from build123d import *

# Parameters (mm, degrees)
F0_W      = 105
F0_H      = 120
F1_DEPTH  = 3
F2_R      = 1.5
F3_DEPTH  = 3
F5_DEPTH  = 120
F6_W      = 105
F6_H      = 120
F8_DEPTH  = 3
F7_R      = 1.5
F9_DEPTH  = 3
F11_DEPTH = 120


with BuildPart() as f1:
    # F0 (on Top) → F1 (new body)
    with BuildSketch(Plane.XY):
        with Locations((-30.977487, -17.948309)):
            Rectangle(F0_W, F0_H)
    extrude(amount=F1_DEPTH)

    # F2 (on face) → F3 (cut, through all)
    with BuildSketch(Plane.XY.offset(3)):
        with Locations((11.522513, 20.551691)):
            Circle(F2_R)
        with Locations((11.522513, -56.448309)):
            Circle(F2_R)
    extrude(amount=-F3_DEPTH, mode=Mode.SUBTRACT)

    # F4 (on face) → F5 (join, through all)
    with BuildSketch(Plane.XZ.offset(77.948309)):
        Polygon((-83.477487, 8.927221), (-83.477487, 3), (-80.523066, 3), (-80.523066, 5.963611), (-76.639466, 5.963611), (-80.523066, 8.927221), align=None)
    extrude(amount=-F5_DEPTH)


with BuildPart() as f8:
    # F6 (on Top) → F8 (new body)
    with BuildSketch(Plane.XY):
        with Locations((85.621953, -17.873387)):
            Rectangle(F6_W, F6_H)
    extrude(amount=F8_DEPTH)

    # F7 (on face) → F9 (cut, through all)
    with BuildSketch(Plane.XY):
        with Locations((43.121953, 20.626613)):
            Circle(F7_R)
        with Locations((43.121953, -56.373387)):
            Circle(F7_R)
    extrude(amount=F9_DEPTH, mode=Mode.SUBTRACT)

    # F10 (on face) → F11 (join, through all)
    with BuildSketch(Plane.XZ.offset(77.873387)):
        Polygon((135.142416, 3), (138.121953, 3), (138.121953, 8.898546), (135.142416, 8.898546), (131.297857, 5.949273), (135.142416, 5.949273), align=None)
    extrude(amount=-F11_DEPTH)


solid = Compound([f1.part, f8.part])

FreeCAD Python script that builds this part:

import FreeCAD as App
import Part
import Sketcher
from FreeCAD import Vector


def add_polygon(sketch, points):
    """Adds a closed chain of lines whose ends are joined by coincident constraints."""
    first, n = sketch.GeometryCount, len(points)
    for a, b in zip(points, points[1:] + points[:1]):
        sketch.addGeometry(Part.LineSegment(App.Vector(*a, 0), App.Vector(*b, 0)), False)
    for i in range(n):
        sketch.addConstraint(Sketcher.Constraint("Coincident", first + i, 2, first + (i + 1) % n, 1))

doc = App.newDocument("Part")
body = doc.addObject("PartDesign::Body", "Body")

# Sketch on XY plane
sketch1 = doc.addObject("Sketcher::SketchObject", "Sketch")
body.addObject(sketch1)
sketch1.AttachmentSupport = (doc.XY_Plane, [""])
sketch1.MapMode = "FlatFace"
add_polygon(sketch1, [(-83.477487, 42.051691), (-83.477487, -77.948309), (21.522513, -77.948309), (21.522513, 42.051691)])  # lines 0-3
sketch1.addConstraint([
    Sketcher.Constraint("Vertical", 0),
    Sketcher.Constraint("Horizontal", 1),
    Sketcher.Constraint("Vertical", 2),
    Sketcher.Constraint("Horizontal", 3),
    Sketcher.Constraint("DistanceX", 1, 1, 1, 2, 105.0),
    Sketcher.Constraint("DistanceY", 0, 2, 0, 1, 120.0),
    Sketcher.Constraint("DistanceY", 0, 2, -1, 1, 77.948309),
    Sketcher.Constraint("DistanceX", 0, 2, -1, 1, 83.477487),
])
pad1 = doc.addObject("PartDesign::Pad", "Pad")
body.addObject(pad1)
pad1.Profile = sketch1
pad1.Length = 3

# Sketch on XY plane
sketch2 = doc.addObject("Sketcher::SketchObject", "Sketch001")
body.addObject(sketch2)
sketch2.AttachmentSupport = (doc.XY_Plane, [""])
sketch2.MapMode = "FlatFace"
sketch2.AttachmentOffset = App.Placement(Vector(0, 0, 3), App.Rotation())
sketch2.addGeometry([
    Part.Circle(Vector(11.522513, 20.551691, 0), Vector(0, 0, 1), 1.5),
    Part.Circle(Vector(11.522513, -56.448309, 0), Vector(0, 0, 1), 1.5),
], False)
sketch2.addConstraint([
    Sketcher.Constraint("Equal", 0, 1),
    Sketcher.Constraint("Vertical", 0, 3, 1, 3),
    Sketcher.Constraint("Diameter", 0, 3.0),
    Sketcher.Constraint("DistanceY", 1, 3, 0, 3, 77.0),
    Sketcher.Constraint("DistanceY", -1, 1, 0, 3, 20.551691),
    Sketcher.Constraint("DistanceX", -1, 1, 0, 3, 11.522513),
])
pocket1 = doc.addObject("PartDesign::Pocket", "Pocket")
body.addObject(pocket1)
pocket1.Profile = sketch2
pocket1.Type = "ThroughAll"

# Sketch on XZ plane
sketch3 = doc.addObject("Sketcher::SketchObject", "Sketch002")
body.addObject(sketch3)
sketch3.AttachmentSupport = (doc.XZ_Plane, [""])
sketch3.MapMode = "FlatFace"
sketch3.AttachmentOffset = App.Placement(Vector(0, 0, 77.948309), App.Rotation())
add_polygon(sketch3, [(-83.477487, 8.927221), (-83.477487, 3), (-80.523066, 3), (-80.523066, 5.963611), (-76.639466, 5.963611), (-80.523066, 8.927221)])  # lines 0-5
sketch3.addConstraint([
    Sketcher.Constraint("Vertical", 0),
    Sketcher.Constraint("Horizontal", 1),
    Sketcher.Constraint("Vertical", 2),
    Sketcher.Constraint("Horizontal", 3),
    Sketcher.Constraint("Horizontal", 5),
    Sketcher.Constraint("Vertical", 2, 2, 4, 2),
    Sketcher.Constraint("DistanceY", -1, 1, 0, 2, 3.0),
    Sketcher.Constraint("DistanceX", 3, 1, 3, 2, 3.8836),
    Sketcher.Constraint("DistanceX", 1, 1, 1, 2, 2.954421),
    Sketcher.Constraint("DistanceY", 0, 2, 0, 1, 5.927221),
    Sketcher.Constraint("DistanceY", 2, 1, 2, 2, 2.963611),
    Sketcher.Constraint("DistanceX", 0, 2, -1, 1, 83.477487),
])
pad2 = doc.addObject("PartDesign::Pad", "Pad001")
body.addObject(pad2)
pad2.Profile = sketch3
pad2.Length = 120
pad2.Reversed = True
body2 = doc.addObject("PartDesign::Body", "Body001")

# Sketch on XY plane
sketch4 = doc.addObject("Sketcher::SketchObject", "Sketch003")
body2.addObject(sketch4)
sketch4.AttachmentSupport = (doc.getObject("XY_Plane001"), [""])
sketch4.MapMode = "FlatFace"
add_polygon(sketch4, [(33.121953, 42.126613), (33.121953, -77.873387), (138.121953, -77.873387), (138.121953, 42.126613)])  # lines 0-3
sketch4.addConstraint([
    Sketcher.Constraint("Vertical", 0),
    Sketcher.Constraint("Horizontal", 1),
    Sketcher.Constraint("Vertical", 2),
    Sketcher.Constraint("Horizontal", 3),
    Sketcher.Constraint("DistanceX", 1, 1, 1, 2, 105.0),
    Sketcher.Constraint("DistanceY", 0, 2, 0, 1, 120.0),
    Sketcher.Constraint("DistanceX", -1, 1, 0, 2, 33.121953),
    Sketcher.Constraint("DistanceY", 0, 2, -1, 1, 77.873387),
])
pad3 = doc.addObject("PartDesign::Pad", "Pad002")
body2.addObject(pad3)
pad3.Profile = sketch4
pad3.Length = 3

# Sketch on XY plane
sketch5 = doc.addObject("Sketcher::SketchObject", "Sketch004")
body2.addObject(sketch5)
sketch5.AttachmentSupport = (doc.getObject("XY_Plane001"), [""])
sketch5.MapMode = "FlatFace"
sketch5.addGeometry([
    Part.Circle(Vector(43.121953, 20.626613, 0), Vector(0, 0, 1), 1.5),
    Part.Circle(Vector(43.121953, -56.373387, 0), Vector(0, 0, 1), 1.5),
], False)
sketch5.addConstraint([
    Sketcher.Constraint("Equal", 0, 1),
    Sketcher.Constraint("Vertical", 0, 3, 1, 3),
    Sketcher.Constraint("Diameter", 0, 3.0),
    Sketcher.Constraint("DistanceY", 1, 3, 0, 3, 77.0),
    Sketcher.Constraint("DistanceX", -1, 1, 0, 3, 43.121953),
    Sketcher.Constraint("DistanceY", -1, 1, 0, 3, 20.626613),
])
pocket2 = doc.addObject("PartDesign::Pocket", "Pocket001")
body2.addObject(pocket2)
pocket2.Profile = sketch5
pocket2.Type = "ThroughAll"
pocket2.Reversed = True

# Sketch on XZ plane
sketch6 = doc.addObject("Sketcher::SketchObject", "Sketch005")
body2.addObject(sketch6)
sketch6.AttachmentSupport = (doc.getObject("XZ_Plane001"), [""])
sketch6.MapMode = "FlatFace"
sketch6.AttachmentOffset = App.Placement(Vector(0, 0, 77.873387), App.Rotation())
add_polygon(sketch6, [(135.142416, 3), (138.121953, 3), (138.121953, 8.898546), (135.142416, 8.898546), (131.297857, 5.949273), (135.142416, 5.949273)])  # lines 0-5
sketch6.addConstraint([
    Sketcher.Constraint("Horizontal", 0),
    Sketcher.Constraint("Vertical", 1),
    Sketcher.Constraint("Horizontal", 2),
    Sketcher.Constraint("Horizontal", 4),
    Sketcher.Constraint("Vertical", 5),
    Sketcher.Constraint("Vertical", 2, 2, 4, 2),
    Sketcher.Constraint("DistanceY", -1, 1, 0, 2, 3.0),
    Sketcher.Constraint("DistanceX", 4, 1, 4, 2, 3.844559),
    Sketcher.Constraint("DistanceX", 0, 1, 0, 2, 2.979537),
    Sketcher.Constraint("DistanceY", 1, 1, 1, 2, 5.898546),
    Sketcher.Constraint("DistanceY", 5, 2, 5, 1, 2.949273),
    Sketcher.Constraint("DistanceX", -1, 1, 0, 2, 138.121953),
])
pad4 = doc.addObject("PartDesign::Pad", "Pad003")
body2.addObject(pad4)
pad4.Profile = sketch6
pad4.Length = 120
pad4.Reversed = True

doc.recompute()
